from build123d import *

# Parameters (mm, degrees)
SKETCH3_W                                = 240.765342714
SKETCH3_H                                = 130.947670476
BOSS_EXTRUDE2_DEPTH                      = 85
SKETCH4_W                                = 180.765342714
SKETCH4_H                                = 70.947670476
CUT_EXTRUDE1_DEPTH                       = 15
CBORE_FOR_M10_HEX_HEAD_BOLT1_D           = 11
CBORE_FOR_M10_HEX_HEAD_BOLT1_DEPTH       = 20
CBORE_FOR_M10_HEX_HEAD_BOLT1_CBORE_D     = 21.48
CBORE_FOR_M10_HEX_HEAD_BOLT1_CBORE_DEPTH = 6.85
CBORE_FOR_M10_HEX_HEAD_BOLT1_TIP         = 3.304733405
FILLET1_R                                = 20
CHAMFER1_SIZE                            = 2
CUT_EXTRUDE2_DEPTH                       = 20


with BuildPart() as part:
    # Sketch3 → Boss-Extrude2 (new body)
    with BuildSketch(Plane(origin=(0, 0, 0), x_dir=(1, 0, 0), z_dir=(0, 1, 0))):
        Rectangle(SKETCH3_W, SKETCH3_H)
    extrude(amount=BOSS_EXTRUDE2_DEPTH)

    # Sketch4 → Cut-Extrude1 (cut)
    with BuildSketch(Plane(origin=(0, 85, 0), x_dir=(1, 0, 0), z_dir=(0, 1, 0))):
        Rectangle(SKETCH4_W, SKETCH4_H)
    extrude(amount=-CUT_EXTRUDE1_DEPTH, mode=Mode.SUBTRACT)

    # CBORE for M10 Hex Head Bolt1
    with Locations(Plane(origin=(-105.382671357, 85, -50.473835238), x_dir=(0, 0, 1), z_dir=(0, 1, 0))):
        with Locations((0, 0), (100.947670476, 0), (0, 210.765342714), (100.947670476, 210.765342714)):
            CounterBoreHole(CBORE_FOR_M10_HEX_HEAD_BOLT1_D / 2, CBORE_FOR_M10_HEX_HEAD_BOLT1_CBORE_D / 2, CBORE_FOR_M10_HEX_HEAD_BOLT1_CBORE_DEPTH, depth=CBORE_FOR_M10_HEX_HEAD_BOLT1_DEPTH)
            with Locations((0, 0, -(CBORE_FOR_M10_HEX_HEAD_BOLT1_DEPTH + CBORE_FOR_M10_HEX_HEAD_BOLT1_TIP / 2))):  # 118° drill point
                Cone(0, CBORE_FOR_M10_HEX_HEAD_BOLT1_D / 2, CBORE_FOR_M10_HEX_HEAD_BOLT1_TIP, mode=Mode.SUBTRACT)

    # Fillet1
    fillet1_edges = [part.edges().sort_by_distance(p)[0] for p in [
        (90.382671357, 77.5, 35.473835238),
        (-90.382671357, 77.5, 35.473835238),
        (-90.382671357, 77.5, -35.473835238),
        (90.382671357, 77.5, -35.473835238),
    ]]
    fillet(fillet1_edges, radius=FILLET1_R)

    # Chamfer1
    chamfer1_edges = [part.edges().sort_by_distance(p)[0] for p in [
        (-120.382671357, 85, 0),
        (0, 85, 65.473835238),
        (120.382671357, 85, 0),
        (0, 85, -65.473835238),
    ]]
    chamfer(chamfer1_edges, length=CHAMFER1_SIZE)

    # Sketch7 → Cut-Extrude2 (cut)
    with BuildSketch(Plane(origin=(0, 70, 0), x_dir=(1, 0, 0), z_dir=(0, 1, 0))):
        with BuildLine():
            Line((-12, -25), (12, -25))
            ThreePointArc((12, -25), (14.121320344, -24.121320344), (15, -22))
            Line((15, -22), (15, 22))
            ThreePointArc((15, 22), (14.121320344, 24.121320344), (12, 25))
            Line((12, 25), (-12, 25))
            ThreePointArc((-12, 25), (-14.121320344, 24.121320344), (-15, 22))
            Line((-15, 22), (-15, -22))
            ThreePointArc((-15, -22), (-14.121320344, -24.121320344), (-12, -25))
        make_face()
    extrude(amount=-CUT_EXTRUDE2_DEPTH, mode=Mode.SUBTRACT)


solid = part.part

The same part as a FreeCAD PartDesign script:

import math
import FreeCAD as App
import Part
import Sketcher
Q = App.Units.Quantity


def edges_at(feature, points):
    """Names of the edges that pass closest to the given points."""
    edges = feature.Shape.Edges
    near = lambda p: min(range(len(edges)), key=lambda i: edges[i].distToShape(Part.Vertex(*p))[0])
    return sorted({f"Edge{near(p) + 1}" for p in points})


def add_polygon(sketch, points):
    """Adds a closed chain of lines whose ends are joined by coincident constraints."""
    first, n = sketch.GeometryCount, len(points)
    for a, b in zip(points, points[1:] + points[:1]):
        sketch.addGeometry(Part.LineSegment(App.Vector(*a, 0), App.Vector(*b, 0)), False)
    for i in range(n):
        sketch.addConstraint(Sketcher.Constraint("Coincident", first + i, 2, first + (i + 1) % n, 1))

doc = App.newDocument("Part")
body = doc.addObject("PartDesign::Body", "Body")

# Sketch on XZ plane
sketch1 = doc.addObject("Sketcher::SketchObject", "Sketch")
body.addObject(sketch1)
sketch1.AttachmentSupport = (doc.XZ_Plane, [""])
sketch1.MapMode = "FlatFace"
add_polygon(sketch1, [(-120, -65), (-120, 65), (120, 65), (120, -65)])  # lines 0-3
sketch1.addConstraint([
    Sketcher.Constraint("Vertical", 0),
    Sketcher.Constraint("Horizontal", 1),
    Sketcher.Constraint("Vertical", 2),
    Sketcher.Constraint("Horizontal", 3),
    Sketcher.Constraint("Symmetric", 0, 2, 2, 2, -1, 1),
    Sketcher.Constraint("DistanceY", 0, 1, 0, 2, Q("130.94767 mm")),
    Sketcher.Constraint("DistanceX", 1, 1, 1, 2, Q("240.765343 mm")),
])
pad1 = doc.addObject("PartDesign::Pad", "Pad")
body.addObject(pad1)
pad1.Profile = sketch1
pad1.Length = 85
pad1.Reversed = True

# Sketch on XZ plane
sketch2 = doc.addObject("Sketcher::SketchObject", "Sketch001")
body.addObject(sketch2)
sketch2.AttachmentSupport = (doc.XZ_Plane, [""])
sketch2.MapMode = "FlatFace"
sketch2.AttachmentOffset = App.Placement(App.Vector(0, 0, -85), App.Rotation())
add_polygon(sketch2, [(-90, -35), (-90, 35), (90, 35), (90, -35)])  # lines 0-3
sketch2.addConstraint([
    Sketcher.Constraint("Vertical", 0),
    Sketcher.Constraint("Horizontal", 1),
    Sketcher.Constraint("Vertical", 2),
    Sketcher.Constraint("Horizontal", 3),
    Sketcher.Constraint("Symmetric", 0, 2, 2, 2, -1, 1),
    Sketcher.Constraint("DistanceY", 0, 1, 0, 2, Q("70.94767 mm")),
    Sketcher.Constraint("DistanceX", 1, 1, 1, 2, Q("180.765343 mm")),
])
pocket1 = doc.addObject("PartDesign::Pocket", "Pocket")
body.addObject(pocket1)
pocket1.Profile = sketch2
pocket1.Length = 15
pocket1.Reversed = True

# Sketch on XZ plane
sketch3 = doc.addObject("Sketcher::SketchObject", "Sketch002")
body.addObject(sketch3)
sketch3.AttachmentSupport = (doc.XZ_Plane, [""])
sketch3.MapMode = "FlatFace"
sketch3.AttachmentOffset = App.Placement(App.Vector(0, 0, -85), App.Rotation())
sketch3.addGeometry([
    Part.Circle(App.Vector(-105, -50, 0), App.Vector(0, 0, 1), 6),
    Part.Circle(App.Vector(-105, 50, 0), App.Vector(0, 0, 1), 6),
    Part.Circle(App.Vector(105, -50, 0), App.Vector(0, 0, 1), 6),
    Part.Circle(App.Vector(105, 50, 0), App.Vector(0, 0, 1), 6),
], False)
sketch3.addConstraint([
    Sketcher.Constraint("Equal", 0, 1),
    Sketcher.Constraint("Equal", 1, 2),
    Sketcher.Constraint("Equal", 2, 3),
    Sketcher.Constraint("Symmetric", 1, 3, 2, 3, -1, 1),
    Sketcher.Constraint("Symmetric", 0, 3, 3, 3, -1, 1),
    Sketcher.Constraint("Symmetric", 0, 3, 2, 3, -2),
    Sketcher.Constraint("Diameter", 0, Q("11 mm")),
    Sketcher.Constraint("DistanceX", 0, 3, -1, 1, Q("105.382671 mm")),
    Sketcher.Constraint("DistanceY", 0, 3, 1, 3, Q("100.94767 mm")),
])
doc.recompute()
hole = doc.addObject("PartDesign::Hole", "Hole")
body.addObject(hole)
hole.Profile = sketch3
hole.ThreadType = "None"
hole.Diameter = 11
hole.DepthType = "Dimension"
hole.Depth = 20
hole.DrillPoint = "Angled"
hole.DrillPointAngle = 118
hole.HoleCutType = "Counterbore"
hole.HoleCutDiameter = 21.48
hole.HoleCutDepth = 6.85
hole.Reversed = True
doc.recompute()

fillet = doc.addObject("PartDesign::Fillet", "Fillet")
body.addObject(fillet)
fillet.Base = (hole, edges_at(hole, [
    (90.383, 77.5, 35.474),
    (-90.383, 77.5, 35.474),
    (-90.383, 77.5, -35.474),
    (90.383, 77.5, -35.474),
]))
fillet.Radius = 20
doc.recompute()

chamfer = doc.addObject("PartDesign::Chamfer", "Chamfer")
body.addObject(chamfer)
chamfer.Base = (fillet, edges_at(fillet, [
    (-120.383, 85, 0),
    (0, 85, 65.474),
    (120.383, 85, 0),
    (0, 85, -65.474),
]))
chamfer.Size = 2

# Sketch on XZ plane
sketch4 = doc.addObject("Sketcher::SketchObject", "Sketch003")
body.addObject(sketch4)
sketch4.AttachmentSupport = (doc.XZ_Plane, [""])
sketch4.MapMode = "FlatFace"
sketch4.AttachmentOffset = App.Placement(App.Vector(0, 0, -70), App.Rotation())
sketch4.addGeometry([
    Part.LineSegment(App.Vector(-12, 25, 0), App.Vector(12, 25, 0)),  # 0
    Part.ArcOfCircle(Part.Circle(App.Vector(12, 22, 0), App.Vector(0, 0, 1), 3), math.radians(0), math.radians(90)),  # 1
    Part.LineSegment(App.Vector(15, 22, 0), App.Vector(15, -22, 0)),  # 2
    Part.ArcOfCircle(Part.Circle(App.Vector(12, -22, 0), App.Vector(0, 0, 1), 3), math.radians(-90), math.radians(0)),  # 3
    Part.LineSegment(App.Vector(12, -25, 0), App.Vector(-12, -25, 0)),  # 4
    Part.ArcOfCircle(Part.Circle(App.Vector(-12, -22, 0), App.Vector(0, 0, 1), 3), math.radians(180), math.radians(270)),  # 5
    Part.LineSegment(App.Vector(-15, -22, 0), App.Vector(-15, 22, 0)),  # 6
    Part.ArcOfCircle(Part.Circle(App.Vector(-12, 22, 0), App.Vector(0, 0, 1), 3), math.radians(90), math.radians(180)),  # 7
], False)
sketch4.addConstraint([
    Sketcher.Constraint("Tangent", 0, 2, 1, 2),
    Sketcher.Constraint("Tangent", 1, 1, 2, 1),
    Sketcher.Constraint("Tangent", 2, 2, 3, 2),
    Sketcher.Constraint("Tangent", 3, 1, 4, 1),
    Sketcher.Constraint("Tangent", 4, 2, 5, 2),
    Sketcher.Constraint("Tangent", 5, 1, 6, 1),
    Sketcher.Constraint("Tangent", 6, 2, 7, 2),
    Sketcher.Constraint("Tangent", 7, 1, 0, 1),
    Sketcher.Constraint("Horizontal", 0),
    Sketcher.Constraint("Vertical", 2),
    Sketcher.Constraint("Horizontal", 4),
    Sketcher.Constraint("Vertical", 6),
    Sketcher.Constraint("Equal", 1, 3),
    Sketcher.Constraint("Equal", 3, 5),
    Sketcher.Constraint("Equal", 5, 7),
    Sketcher.Constraint("Symmetric", 1, 3, 5, 3, -1, 1),
    Sketcher.Constraint("Radius", 1, Q("3 mm")),
    Sketcher.Constraint("DistanceX", 0, 1, 0, 2, Q("24 mm")),
    Sketcher.Constraint("DistanceY", 2, 2, 2, 1, Q("44 mm")),
])
pocket2 = doc.addObject("PartDesign::Pocket", "Pocket001")
body.addObject(pocket2)
pocket2.Profile = sketch4
pocket2.Length = 20
pocket2.Reversed = True

doc.recompute()
